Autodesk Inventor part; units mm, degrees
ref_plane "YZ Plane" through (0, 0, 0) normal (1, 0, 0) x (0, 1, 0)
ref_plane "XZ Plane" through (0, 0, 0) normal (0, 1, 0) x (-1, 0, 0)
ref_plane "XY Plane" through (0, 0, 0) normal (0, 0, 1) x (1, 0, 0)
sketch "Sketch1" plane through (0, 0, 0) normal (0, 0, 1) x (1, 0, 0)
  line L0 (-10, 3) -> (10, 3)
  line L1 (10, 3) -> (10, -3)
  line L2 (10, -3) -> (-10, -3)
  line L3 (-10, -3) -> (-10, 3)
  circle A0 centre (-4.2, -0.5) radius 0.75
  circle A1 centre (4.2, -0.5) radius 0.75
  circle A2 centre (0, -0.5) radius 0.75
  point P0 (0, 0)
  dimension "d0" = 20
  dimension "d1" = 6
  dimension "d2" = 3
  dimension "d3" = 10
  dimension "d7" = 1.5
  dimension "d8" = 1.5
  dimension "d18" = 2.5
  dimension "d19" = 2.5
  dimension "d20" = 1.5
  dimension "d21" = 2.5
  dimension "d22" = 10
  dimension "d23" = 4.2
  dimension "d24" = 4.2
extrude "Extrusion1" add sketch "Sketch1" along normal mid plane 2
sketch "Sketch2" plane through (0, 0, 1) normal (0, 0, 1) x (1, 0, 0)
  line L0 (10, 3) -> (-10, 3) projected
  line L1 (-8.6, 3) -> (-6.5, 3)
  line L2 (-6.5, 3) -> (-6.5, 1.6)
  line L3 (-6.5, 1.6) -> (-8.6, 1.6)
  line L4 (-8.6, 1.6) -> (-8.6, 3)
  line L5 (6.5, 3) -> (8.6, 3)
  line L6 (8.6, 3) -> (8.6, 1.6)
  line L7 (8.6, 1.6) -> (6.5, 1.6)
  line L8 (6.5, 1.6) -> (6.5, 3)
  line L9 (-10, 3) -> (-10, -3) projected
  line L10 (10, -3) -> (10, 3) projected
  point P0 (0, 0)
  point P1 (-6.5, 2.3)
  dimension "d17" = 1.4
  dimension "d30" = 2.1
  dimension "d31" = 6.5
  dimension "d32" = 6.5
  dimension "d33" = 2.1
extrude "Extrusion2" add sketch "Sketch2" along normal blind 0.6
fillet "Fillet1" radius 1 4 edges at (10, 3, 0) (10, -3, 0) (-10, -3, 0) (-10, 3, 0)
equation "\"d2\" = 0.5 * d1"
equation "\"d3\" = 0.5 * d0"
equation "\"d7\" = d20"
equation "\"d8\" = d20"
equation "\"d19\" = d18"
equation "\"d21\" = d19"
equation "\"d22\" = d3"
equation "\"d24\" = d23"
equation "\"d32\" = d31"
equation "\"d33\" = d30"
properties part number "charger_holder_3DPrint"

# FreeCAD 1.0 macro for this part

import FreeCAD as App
import Part
import Sketcher

V = App.Vector


def edges_at(feature, points):
    """Names of the edges that pass closest to the given points."""
    edges = feature.Shape.Edges
    near = lambda p: min(range(len(edges)), key=lambda i: edges[i].distToShape(Part.Vertex(*p))[0])
    return sorted({f"Edge{near(p) + 1}" for p in points})

doc = App.newDocument("Part")
body = doc.addObject("PartDesign::Body", "Body")

# Sketch on XY plane
sketch1 = body.newObject("Sketcher::SketchObject", "Sketch")
sketch1.AttachmentSupport = (doc.getObject("XY_Plane"), [""])
sketch1.MapMode = "FlatFace"
sketch1.addGeometry(Part.LineSegment(V(10, 3, 0), V(-10, 3, 0)), False)
sketch1.addGeometry(Part.LineSegment(V(-10, 3, 0), V(-10, -3, 0)), False)
sketch1.addGeometry(Part.LineSegment(V(-10, -3, 0), V(10, -3, 0)), False)
sketch1.addGeometry(Part.LineSegment(V(10, -3, 0), V(10, 3, 0)), False)
sketch1.addGeometry(Part.Circle(V(-4.2, -0.5, 0), V(0, 0, 1), 0.8), False)
sketch1.addGeometry(Part.Circle(V(0, -0.5, 0), V(0, 0, 1), 0.8), False)
sketch1.addGeometry(Part.Circle(V(4.2, -0.5, 0), V(0, 0, 1), 0.8), False)
sketch1.addConstraint(Sketcher.Constraint("Coincident", 0, 2, 1, 1))
sketch1.addConstraint(Sketcher.Constraint("Coincident", 1, 2, 2, 1))
sketch1.addConstraint(Sketcher.Constraint("Coincident", 2, 2, 3, 1))
sketch1.addConstraint(Sketcher.Constraint("Coincident", 3, 2, 0, 1))
sketch1.addConstraint(Sketcher.Constraint("Horizontal", 0))
sketch1.addConstraint(Sketcher.Constraint("Vertical", 1))
sketch1.addConstraint(Sketcher.Constraint("Horizontal", 2))
sketch1.addConstraint(Sketcher.Constraint("Vertical", 3))
sketch1.addConstraint(Sketcher.Constraint("Equal", 4, 5))
sketch1.addConstraint(Sketcher.Constraint("Equal", 5, 6))
sketch1.addConstraint(Sketcher.Constraint("Symmetric", 0, 2, 2, 2, -1, 1))
sketch1.addConstraint(Sketcher.Constraint("Symmetric", 4, 3, 6, 3, -2))
sketch1.addConstraint(Sketcher.Constraint("PointOnObject", 5, 3, -2))
sketch1.addConstraint(Sketcher.Constraint("Horizontal", 4, 3, 5, 3))
sketch1.addConstraint(Sketcher.Constraint("Diameter", 4, 1.5))
sketch1.addConstraint(Sketcher.Constraint("DistanceX", 0, 2, 0, 1, 20.0))
sketch1.addConstraint(Sketcher.Constraint("DistanceY", 1, 2, 1, 1, 6.0))
sketch1.addConstraint(Sketcher.Constraint("DistanceX", 4, 3, -1, 1, 4.2))
sketch1.addConstraint(Sketcher.Constraint("DistanceY", 1, 2, 4, 3, 2.5))
pad1 = body.newObject("PartDesign::Pad", "Pad")
pad1.Profile = sketch1
pad1.Length = 2
pad1.Midplane = True

# Sketch on XY plane
sketch2 = body.newObject("Sketcher::SketchObject", "Sketch001")
sketch2.AttachmentSupport = (doc.getObject("XY_Plane"), [""])
sketch2.MapMode = "FlatFace"
sketch2.AttachmentOffset = App.Placement(V(0, 0, 1), App.Rotation())
sketch2.addGeometry(Part.LineSegment(V(8.6, 1.6, 0), V(8.6, 3, 0)), False)
sketch2.addGeometry(Part.LineSegment(V(8.6, 3, 0), V(6.5, 3, 0)), False)
sketch2.addGeometry(Part.LineSegment(V(6.5, 3, 0), V(6.5, 1.6, 0)), False)
sketch2.addGeometry(Part.LineSegment(V(6.5, 1.6, 0), V(8.6, 1.6, 0)), False)
sketch2.addGeometry(Part.LineSegment(V(-6.5, 1.6, 0), V(-6.5, 3, 0)), False)
sketch2.addGeometry(Part.LineSegment(V(-6.5, 3, 0), V(-8.6, 3, 0)), False)
sketch2.addGeometry(Part.LineSegment(V(-8.6, 3, 0), V(-8.6, 1.6, 0)), False)
sketch2.addGeometry(Part.LineSegment(V(-8.6, 1.6, 0), V(-6.5, 1.6, 0)), False)
sketch2.addConstraint(Sketcher.Constraint("Coincident", 0, 2, 1, 1))
sketch2.addConstraint(Sketcher.Constraint("Coincident", 1, 2, 2, 1))
sketch2.addConstraint(Sketcher.Constraint("Coincident", 2, 2, 3, 1))
sketch2.addConstraint(Sketcher.Constraint("Coincident", 3, 2, 0, 1))
sketch2.addConstraint(Sketcher.Constraint("Coincident", 4, 2, 5, 1))
sketch2.addConstraint(Sketcher.Constraint("Coincident", 5, 2, 6, 1))
sketch2.addConstraint(Sketcher.Constraint("Coincident", 6, 2, 7, 1))
sketch2.addConstraint(Sketcher.Constraint("Coincident", 7, 2, 4, 1))
sketch2.addConstraint(Sketcher.Constraint("Vertical", 0))
sketch2.addConstraint(Sketcher.Constraint("Horizontal", 1))
sketch2.addConstraint(Sketcher.Constraint("Vertical", 2))
sketch2.addConstraint(Sketcher.Constraint("Horizontal", 3))
sketch2.addConstraint(Sketcher.Constraint("Vertical", 4))
sketch2.addConstraint(Sketcher.Constraint("Horizontal", 5))
sketch2.addConstraint(Sketcher.Constraint("Vertical", 6))
sketch2.addConstraint(Sketcher.Constraint("Horizontal", 7))
sketch2.addConstraint(Sketcher.Constraint("Symmetric", 1, 2, 4, 2, -2))
sketch2.addConstraint(Sketcher.Constraint("Symmetric", 3, 2, 6, 2, -2))
sketch2.addConstraint(Sketcher.Constraint("DistanceX", 1, 2, 1, 1, 2.1))
sketch2.addConstraint(Sketcher.Constraint("DistanceY", 0, 1, 0, 2, 1.4))
sketch2.addConstraint(Sketcher.Constraint("DistanceX", -1, 1, 1, 2, 6.5))
sketch2.addConstraint(Sketcher.Constraint("DistanceY", -1, 1, 0, 2, 3.0))
pad2 = body.newObject("PartDesign::Pad", "Pad001")
pad2.Profile = sketch2
pad2.Length = 0.6
doc.recompute()

fillet = body.newObject("PartDesign::Fillet", "Fillet")
fillet.Base = (pad2, edges_at(pad2, [
    (10, 3, 0),
    (10, -3, 0),
    (-10, -3, 0),
    (-10, 3, 0),
]))
fillet.Radius = 1

doc.recompute()
